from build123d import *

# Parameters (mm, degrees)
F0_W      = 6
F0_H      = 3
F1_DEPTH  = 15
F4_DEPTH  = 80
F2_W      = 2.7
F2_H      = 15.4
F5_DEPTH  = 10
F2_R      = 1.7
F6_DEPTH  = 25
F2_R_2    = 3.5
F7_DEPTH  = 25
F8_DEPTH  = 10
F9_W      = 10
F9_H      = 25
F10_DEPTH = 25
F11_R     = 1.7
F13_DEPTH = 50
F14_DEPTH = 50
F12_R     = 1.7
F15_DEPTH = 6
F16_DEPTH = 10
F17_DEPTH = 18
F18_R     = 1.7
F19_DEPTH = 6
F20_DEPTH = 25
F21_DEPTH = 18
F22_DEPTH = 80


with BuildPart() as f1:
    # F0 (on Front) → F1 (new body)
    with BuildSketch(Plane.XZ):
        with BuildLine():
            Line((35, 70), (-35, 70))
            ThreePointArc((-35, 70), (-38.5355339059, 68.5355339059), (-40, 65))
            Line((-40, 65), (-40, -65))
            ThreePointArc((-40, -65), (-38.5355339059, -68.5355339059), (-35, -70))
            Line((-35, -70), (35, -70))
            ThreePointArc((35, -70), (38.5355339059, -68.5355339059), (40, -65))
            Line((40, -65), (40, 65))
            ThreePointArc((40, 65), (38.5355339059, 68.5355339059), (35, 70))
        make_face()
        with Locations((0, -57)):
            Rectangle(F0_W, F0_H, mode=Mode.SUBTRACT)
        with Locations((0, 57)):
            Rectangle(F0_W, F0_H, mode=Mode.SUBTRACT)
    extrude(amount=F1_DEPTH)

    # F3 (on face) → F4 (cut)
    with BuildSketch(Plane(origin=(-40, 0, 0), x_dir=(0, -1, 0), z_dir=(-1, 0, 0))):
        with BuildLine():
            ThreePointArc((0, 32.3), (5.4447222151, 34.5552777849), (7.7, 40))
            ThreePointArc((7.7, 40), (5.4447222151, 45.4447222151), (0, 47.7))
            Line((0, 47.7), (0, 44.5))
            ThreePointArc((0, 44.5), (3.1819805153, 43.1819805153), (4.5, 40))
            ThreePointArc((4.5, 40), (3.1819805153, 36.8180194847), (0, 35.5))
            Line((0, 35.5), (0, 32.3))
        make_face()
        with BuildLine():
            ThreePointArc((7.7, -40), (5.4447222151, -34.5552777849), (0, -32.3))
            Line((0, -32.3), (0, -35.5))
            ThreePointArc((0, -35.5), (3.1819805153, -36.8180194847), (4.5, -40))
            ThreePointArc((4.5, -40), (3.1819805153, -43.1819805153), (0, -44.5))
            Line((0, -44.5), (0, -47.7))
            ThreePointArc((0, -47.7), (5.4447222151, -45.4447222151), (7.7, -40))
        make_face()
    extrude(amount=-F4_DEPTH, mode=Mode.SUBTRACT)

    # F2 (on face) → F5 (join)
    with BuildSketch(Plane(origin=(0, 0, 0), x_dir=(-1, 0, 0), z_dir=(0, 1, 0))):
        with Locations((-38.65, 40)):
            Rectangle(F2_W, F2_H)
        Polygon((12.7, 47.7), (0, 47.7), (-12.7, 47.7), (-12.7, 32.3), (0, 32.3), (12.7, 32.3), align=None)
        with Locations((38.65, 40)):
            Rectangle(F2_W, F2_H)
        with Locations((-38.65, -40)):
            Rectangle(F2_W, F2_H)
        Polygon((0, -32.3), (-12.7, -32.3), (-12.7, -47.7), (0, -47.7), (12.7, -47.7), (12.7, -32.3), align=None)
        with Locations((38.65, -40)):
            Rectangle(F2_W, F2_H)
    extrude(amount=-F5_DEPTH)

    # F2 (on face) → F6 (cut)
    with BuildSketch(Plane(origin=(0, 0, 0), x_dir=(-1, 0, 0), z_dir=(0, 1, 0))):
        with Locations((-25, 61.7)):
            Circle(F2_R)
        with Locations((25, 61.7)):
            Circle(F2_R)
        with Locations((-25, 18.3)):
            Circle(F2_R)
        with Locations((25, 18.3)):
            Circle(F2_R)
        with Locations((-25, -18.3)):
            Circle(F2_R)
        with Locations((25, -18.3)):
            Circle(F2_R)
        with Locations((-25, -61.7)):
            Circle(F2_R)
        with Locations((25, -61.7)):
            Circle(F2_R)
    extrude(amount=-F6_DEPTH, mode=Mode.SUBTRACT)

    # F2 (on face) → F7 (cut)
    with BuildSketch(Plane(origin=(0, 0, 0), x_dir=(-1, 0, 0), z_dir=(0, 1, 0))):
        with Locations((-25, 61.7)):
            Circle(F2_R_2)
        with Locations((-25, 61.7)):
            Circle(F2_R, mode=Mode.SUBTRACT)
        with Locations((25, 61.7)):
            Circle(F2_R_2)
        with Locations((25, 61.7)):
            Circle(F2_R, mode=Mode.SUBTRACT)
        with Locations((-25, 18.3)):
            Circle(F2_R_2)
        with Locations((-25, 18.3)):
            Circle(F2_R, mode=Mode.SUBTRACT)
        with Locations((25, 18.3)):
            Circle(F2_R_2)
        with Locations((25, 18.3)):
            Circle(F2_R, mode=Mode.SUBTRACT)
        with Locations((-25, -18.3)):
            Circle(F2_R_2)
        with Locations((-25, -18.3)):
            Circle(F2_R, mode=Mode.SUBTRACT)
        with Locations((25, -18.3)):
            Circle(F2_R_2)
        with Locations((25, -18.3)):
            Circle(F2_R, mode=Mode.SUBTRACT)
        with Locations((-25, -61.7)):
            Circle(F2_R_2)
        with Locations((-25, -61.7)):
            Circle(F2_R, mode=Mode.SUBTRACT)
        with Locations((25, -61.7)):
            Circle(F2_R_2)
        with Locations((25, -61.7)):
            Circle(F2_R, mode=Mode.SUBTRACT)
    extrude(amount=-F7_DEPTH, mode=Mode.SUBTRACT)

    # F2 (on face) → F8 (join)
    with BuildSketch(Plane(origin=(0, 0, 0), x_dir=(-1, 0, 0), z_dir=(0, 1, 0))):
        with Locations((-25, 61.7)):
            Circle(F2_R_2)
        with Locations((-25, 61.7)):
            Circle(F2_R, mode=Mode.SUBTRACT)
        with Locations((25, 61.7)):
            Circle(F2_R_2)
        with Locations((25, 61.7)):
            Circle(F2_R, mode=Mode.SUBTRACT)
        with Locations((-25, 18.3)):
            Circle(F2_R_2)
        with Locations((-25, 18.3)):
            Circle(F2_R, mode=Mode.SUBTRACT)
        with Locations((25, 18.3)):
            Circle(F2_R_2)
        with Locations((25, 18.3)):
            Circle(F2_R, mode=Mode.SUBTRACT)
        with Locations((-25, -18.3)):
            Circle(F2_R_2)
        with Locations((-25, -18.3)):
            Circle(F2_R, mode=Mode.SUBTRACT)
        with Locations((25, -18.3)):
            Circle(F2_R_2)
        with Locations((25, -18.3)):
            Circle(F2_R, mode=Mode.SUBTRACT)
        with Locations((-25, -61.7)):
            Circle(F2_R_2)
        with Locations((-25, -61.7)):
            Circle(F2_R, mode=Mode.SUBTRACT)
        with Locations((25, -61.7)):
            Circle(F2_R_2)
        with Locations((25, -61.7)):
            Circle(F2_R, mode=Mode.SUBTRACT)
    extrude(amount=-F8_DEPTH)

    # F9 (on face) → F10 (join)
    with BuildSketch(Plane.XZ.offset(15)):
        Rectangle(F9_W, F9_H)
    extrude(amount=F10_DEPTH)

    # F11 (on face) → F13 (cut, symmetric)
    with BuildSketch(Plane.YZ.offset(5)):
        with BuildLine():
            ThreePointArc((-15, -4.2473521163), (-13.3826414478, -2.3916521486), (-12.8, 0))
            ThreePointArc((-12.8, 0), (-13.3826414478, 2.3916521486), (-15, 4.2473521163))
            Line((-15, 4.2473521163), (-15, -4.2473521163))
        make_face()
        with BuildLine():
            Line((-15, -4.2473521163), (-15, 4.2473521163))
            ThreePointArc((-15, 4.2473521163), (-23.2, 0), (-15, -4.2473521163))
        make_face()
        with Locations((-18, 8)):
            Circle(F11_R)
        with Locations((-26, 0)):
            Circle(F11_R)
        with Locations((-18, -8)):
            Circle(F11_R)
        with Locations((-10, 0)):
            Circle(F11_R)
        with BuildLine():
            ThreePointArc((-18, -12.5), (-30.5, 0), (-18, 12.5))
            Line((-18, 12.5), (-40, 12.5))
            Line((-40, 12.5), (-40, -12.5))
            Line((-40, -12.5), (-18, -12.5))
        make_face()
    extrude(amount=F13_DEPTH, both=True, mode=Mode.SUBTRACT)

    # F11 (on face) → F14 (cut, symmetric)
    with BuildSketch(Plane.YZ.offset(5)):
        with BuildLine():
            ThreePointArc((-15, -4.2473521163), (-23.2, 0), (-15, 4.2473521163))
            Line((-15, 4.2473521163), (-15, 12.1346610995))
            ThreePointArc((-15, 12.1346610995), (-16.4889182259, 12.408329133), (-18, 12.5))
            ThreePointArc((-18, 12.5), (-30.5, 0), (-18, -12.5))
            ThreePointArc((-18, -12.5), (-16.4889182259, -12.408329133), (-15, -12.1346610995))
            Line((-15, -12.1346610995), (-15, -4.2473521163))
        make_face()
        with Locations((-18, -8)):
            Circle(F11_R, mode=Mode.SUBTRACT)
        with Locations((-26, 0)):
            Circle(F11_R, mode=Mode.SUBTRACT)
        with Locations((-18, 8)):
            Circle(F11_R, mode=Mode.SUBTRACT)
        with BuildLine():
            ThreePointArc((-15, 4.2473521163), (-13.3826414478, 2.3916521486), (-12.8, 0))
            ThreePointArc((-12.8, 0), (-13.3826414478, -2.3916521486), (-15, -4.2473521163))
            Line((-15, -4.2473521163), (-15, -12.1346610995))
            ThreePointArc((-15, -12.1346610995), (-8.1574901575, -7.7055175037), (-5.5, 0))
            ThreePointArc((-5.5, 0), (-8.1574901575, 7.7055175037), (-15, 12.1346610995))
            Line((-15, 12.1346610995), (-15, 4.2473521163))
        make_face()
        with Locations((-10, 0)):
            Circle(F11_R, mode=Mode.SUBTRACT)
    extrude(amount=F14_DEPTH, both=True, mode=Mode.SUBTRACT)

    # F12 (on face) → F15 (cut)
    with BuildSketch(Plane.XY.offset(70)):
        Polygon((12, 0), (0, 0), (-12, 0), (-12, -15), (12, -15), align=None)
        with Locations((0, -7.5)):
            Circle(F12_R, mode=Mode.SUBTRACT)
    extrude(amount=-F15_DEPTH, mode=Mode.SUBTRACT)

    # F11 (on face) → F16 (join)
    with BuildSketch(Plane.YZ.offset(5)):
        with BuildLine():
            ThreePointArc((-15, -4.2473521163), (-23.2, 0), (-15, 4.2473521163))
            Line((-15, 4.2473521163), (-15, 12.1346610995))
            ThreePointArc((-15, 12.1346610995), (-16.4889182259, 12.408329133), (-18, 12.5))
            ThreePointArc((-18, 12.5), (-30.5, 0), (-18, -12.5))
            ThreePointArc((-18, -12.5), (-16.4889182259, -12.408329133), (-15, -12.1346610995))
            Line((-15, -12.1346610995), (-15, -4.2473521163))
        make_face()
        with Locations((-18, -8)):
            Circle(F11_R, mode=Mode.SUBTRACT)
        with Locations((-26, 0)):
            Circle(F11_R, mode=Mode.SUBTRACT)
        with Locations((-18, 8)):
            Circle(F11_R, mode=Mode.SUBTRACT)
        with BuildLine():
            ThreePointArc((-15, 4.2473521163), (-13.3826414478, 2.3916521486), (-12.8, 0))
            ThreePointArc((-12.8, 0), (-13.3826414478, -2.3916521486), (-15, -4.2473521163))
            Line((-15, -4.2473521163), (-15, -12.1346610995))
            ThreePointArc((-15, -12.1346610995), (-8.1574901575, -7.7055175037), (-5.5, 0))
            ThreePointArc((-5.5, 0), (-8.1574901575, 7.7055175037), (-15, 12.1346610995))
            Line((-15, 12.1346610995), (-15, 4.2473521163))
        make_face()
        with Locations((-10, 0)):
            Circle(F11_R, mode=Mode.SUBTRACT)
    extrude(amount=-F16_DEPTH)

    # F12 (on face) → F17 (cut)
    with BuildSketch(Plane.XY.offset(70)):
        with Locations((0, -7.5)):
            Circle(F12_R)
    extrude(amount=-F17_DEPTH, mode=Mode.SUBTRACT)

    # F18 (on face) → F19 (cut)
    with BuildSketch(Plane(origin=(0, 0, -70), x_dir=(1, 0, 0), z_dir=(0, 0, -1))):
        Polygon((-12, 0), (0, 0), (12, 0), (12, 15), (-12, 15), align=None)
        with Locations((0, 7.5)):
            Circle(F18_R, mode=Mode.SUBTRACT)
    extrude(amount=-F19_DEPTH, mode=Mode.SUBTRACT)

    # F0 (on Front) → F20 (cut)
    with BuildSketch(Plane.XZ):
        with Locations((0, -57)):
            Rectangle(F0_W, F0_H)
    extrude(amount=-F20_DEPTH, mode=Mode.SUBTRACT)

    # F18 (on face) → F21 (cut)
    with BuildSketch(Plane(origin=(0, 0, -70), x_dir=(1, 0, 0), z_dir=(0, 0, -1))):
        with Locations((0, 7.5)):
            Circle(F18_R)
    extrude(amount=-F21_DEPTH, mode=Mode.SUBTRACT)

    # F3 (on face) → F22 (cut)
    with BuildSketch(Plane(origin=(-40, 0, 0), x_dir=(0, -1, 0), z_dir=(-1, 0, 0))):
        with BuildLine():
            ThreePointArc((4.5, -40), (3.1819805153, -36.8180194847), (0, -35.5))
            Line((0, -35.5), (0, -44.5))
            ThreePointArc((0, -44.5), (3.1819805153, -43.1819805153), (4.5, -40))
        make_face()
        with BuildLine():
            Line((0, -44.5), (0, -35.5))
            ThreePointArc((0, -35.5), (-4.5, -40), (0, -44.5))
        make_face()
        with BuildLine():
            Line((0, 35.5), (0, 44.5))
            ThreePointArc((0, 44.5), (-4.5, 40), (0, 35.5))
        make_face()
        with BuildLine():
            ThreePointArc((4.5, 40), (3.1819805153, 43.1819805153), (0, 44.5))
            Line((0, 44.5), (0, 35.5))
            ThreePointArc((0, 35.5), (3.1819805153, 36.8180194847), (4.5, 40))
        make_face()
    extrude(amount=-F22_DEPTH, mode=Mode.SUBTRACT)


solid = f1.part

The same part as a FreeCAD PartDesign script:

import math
import FreeCAD as App
import Part
import Sketcher

V = App.Vector


def add_polygon(sketch, points):
    """Adds a closed chain of lines whose ends are joined by coincident constraints."""
    first, n = sketch.GeometryCount, len(points)
    for a, b in zip(points, points[1:] + points[:1]):
        sketch.addGeometry(Part.LineSegment(App.Vector(*a, 0), App.Vector(*b, 0)), False)
    for i in range(n):
        sketch.addConstraint(Sketcher.Constraint("Coincident", first + i, 2, first + (i + 1) % n, 1))

doc = App.newDocument("Part")
body = doc.addObject("PartDesign::Body", "Body")
body.AllowCompound = True

# Sketch on XZ plane
sketch1 = doc.addObject("Sketcher::SketchObject", "Sketch")
body.addObject(sketch1)
sketch1.AttachmentSupport = (doc.XZ_Plane, [""])
sketch1.MapMode = "FlatFace"
sketch1.addGeometry(Part.LineSegment(V(35, 70, 0), V(-35, 70, 0)), False)  # 0
sketch1.addGeometry(Part.ArcOfCircle(Part.Circle(V(-35, 65, 0), V(0, 0, 1), 5), math.radians(90), math.radians(180)), False)  # 1
sketch1.addGeometry(Part.LineSegment(V(-40, 65, 0), V(-40, -65, 0)), False)  # 2
sketch1.addGeometry(Part.ArcOfCircle(Part.Circle(V(-35, -65, 0), V(0, 0, 1), 5), math.radians(180), math.radians(270)), False)  # 3
sketch1.addGeometry(Part.LineSegment(V(-35, -70, 0), V(35, -70, 0)), False)  # 4
sketch1.addGeometry(Part.ArcOfCircle(Part.Circle(V(35, -65, 0), V(0, 0, 1), 5), math.radians(-90), math.radians(0)), False)  # 5
sketch1.addGeometry(Part.LineSegment(V(40, -65, 0), V(40, 65, 0)), False)  # 6
sketch1.addGeometry(Part.ArcOfCircle(Part.Circle(V(35, 65, 0), V(0, 0, 1), 5), math.radians(0), math.radians(90)), False)  # 7
add_polygon(sketch1, [(3, -58.5), (-3, -58.5), (-3, -55.5), (3, -55.5)])  # lines 8-11
add_polygon(sketch1, [(3, 55.5), (-3, 55.5), (-3, 58.5), (3, 58.5)])  # lines 12-15
sketch1.addConstraint([
    Sketcher.Constraint("Tangent", 0, 2, 1, 1),
    Sketcher.Constraint("Tangent", 1, 2, 2, 1),
    Sketcher.Constraint("Tangent", 2, 2, 3, 1),
    Sketcher.Constraint("Tangent", 3, 2, 4, 1),
    Sketcher.Constraint("Tangent", 4, 2, 5, 1),
    Sketcher.Constraint("Tangent", 5, 2, 6, 1),
    Sketcher.Constraint("Tangent", 6, 2, 7, 1),
    Sketcher.Constraint("Tangent", 7, 2, 0, 1),
    Sketcher.Constraint("Horizontal", 0),
    Sketcher.Constraint("Vertical", 2),
    Sketcher.Constraint("Horizontal", 4),
    Sketcher.Constraint("Vertical", 6),
    Sketcher.Constraint("Horizontal", 8),
    Sketcher.Constraint("Vertical", 9),
    Sketcher.Constraint("Horizontal", 10),
    Sketcher.Constraint("Vertical", 11),
    Sketcher.Constraint("Horizontal", 12),
    Sketcher.Constraint("Vertical", 13),
    Sketcher.Constraint("Horizontal", 14),
    Sketcher.Constraint("Vertical", 15),
    Sketcher.Constraint("Equal", 1, 3),
    Sketcher.Constraint("Equal", 3, 5),
    Sketcher.Constraint("Equal", 5, 7),
    Sketcher.Constraint("Symmetric", 1, 3, 5, 3, -1, 1),
    Sketcher.Constraint("Symmetric", 10, 2, 12, 2, -1, 1),
    Sketcher.Constraint("Symmetric", 8, 2, 14, 2, -1, 1),
    Sketcher.Constraint("Vertical", 9, 2, 12, 2),
    Sketcher.Constraint("Radius", 1, 5.0),
    Sketcher.Constraint("DistanceX", 0, 2, 0, 1, 70.0),
    Sketcher.Constraint("DistanceX", 8, 2, 8, 1, 6.0),
    Sketcher.Constraint("DistanceY", 2, 2, 2, 1, 130.0),
    Sketcher.Constraint("DistanceY", 9, 1, 9, 2, 3.0),
    Sketcher.Constraint("DistanceY", 8, 2, -1, 1, 58.5),
])
pad1 = doc.addObject("PartDesign::Pad", "Pad")
body.addObject(pad1)
pad1.Profile = sketch1
pad1.Length = 15

# Sketch on YZ plane
sketch2 = doc.addObject("Sketcher::SketchObject", "Sketch001")
body.addObject(sketch2)
sketch2.AttachmentSupport = (doc.YZ_Plane, [""])
sketch2.MapMode = "FlatFace"
sketch2.AttachmentOffset = App.Placement(V(0, 0, -40), App.Rotation())
sketch2.addGeometry([
    Part.ArcOfCircle(Part.Circle(V(0, 40, 0), V(0, 0, 1), 7.7), math.radians(180), math.radians(270)),  # 0
    Part.ArcOfCircle(Part.Circle(V(0, 40, 0), V(0, 0, 1), 7.7), math.radians(90), math.radians(180)),  # 1
    Part.LineSegment(V(0, 47.7, 0), V(0, 44.5, 0)),  # 2
    Part.ArcOfCircle(Part.Circle(V(0, 40, 0), V(0, 0, 1), 4.5), math.radians(90), math.radians(180)),  # 3
    Part.ArcOfCircle(Part.Circle(V(0, 40, 0), V(0, 0, 1), 4.5), math.radians(180), math.radians(270)),  # 4
    Part.LineSegment(V(0, 35.5, 0), V(0, 32.3, 0)),  # 5
    Part.ArcOfCircle(Part.Circle(V(0, -40, 0), V(0, 0, 1), 7.7), math.radians(90), math.radians(180)),  # 6
    Part.LineSegment(V(0, -32.3, 0), V(0, -35.5, 0)),  # 7
    Part.ArcOfCircle(Part.Circle(V(0, -40, 0), V(0, 0, 1), 4.5), math.radians(90), math.radians(180)),  # 8
    Part.ArcOfCircle(Part.Circle(V(0, -40, 0), V(0, 0, 1), 4.5), math.radians(180), math.radians(270)),  # 9
    Part.LineSegment(V(0, -44.5, 0), V(0, -47.7, 0)),  # 10
    Part.ArcOfCircle(Part.Circle(V(0, -40, 0), V(0, 0, 1), 7.7), math.radians(180), math.radians(270)),  # 11
], False)
sketch2.addConstraint([
    Sketcher.Constraint("Tangent", 0, 1, 1, 2),
    Sketcher.Constraint("Coincident", 1, 1, 2, 1),
    Sketcher.Constraint("Coincident", 2, 2, 3, 1),
    Sketcher.Constraint("Tangent", 3, 2, 4, 1),
    Sketcher.Constraint("Coincident", 4, 2, 5, 1),
    Sketcher.Constraint("Coincident", 5, 2, 0, 2),
    Sketcher.Constraint("Coincident", 6, 1, 7, 1),
    Sketcher.Constraint("Coincident", 7, 2, 8, 1),
    Sketcher.Constraint("Tangent", 8, 2, 9, 1),
    Sketcher.Constraint("Coincident", 9, 2, 10, 1),
    Sketcher.Constraint("Coincident", 10, 2, 11, 2),
    Sketcher.Constraint("Tangent", 11, 1, 6, 2),
    Sketcher.Constraint("Vertical", 2),
    Sketcher.Constraint("Vertical", 5),
    Sketcher.Constraint("Vertical", 7),
    Sketcher.Constraint("Vertical", 10),
    Sketcher.Constraint("Coincident", 3, 3, 0, 3),
    Sketcher.Constraint("Coincident", 8, 3, 6, 3),
    Sketcher.Constraint("Equal", 0, 1),
    Sketcher.Constraint("Equal", 3, 4),
    Sketcher.Constraint("Equal", 1, 6),
    Sketcher.Constraint("Equal", 4, 8),
    Sketcher.Constraint("Equal", 8, 9),
    Sketcher.Constraint("Equal", 6, 11),
    Sketcher.Constraint("Symmetric", 0, 3, 6, 3, -1, 1),
    Sketcher.Constraint("Symmetric", 3, 2, 8, 2, -1),
    Sketcher.Constraint("PointOnObject", 1, 1, -2),
    Sketcher.Constraint("PointOnObject", 4, 2, -2),
    Sketcher.Constraint("PointOnObject", 6, 1, -2),
    Sketcher.Constraint("PointOnObject", 9, 2, -2),
    Sketcher.Constraint("Horizontal", 4, 3, 0, 1),
    Sketcher.Constraint("Horizontal", 0, 1, 3, 2),
    Sketcher.Constraint("Horizontal", 8, 2, 11, 1),
    Sketcher.Constraint("Radius", 0, 7.7),
    Sketcher.Constraint("Radius", 3, 4.5),
    Sketcher.Constraint("DistanceY", -1, 1, 0, 3, 40.0),
])
pocket1 = doc.addObject("PartDesign::Pocket", "Pocket")
body.addObject(pocket1)
pocket1.Profile = sketch2
pocket1.Length = 80
pocket1.Reversed = True

# Sketch on XZ plane
sketch3 = doc.addObject("Sketcher::SketchObject", "Sketch002")
body.addObject(sketch3)
sketch3.AttachmentSupport = (doc.XZ_Plane, [""])
sketch3.MapMode = "FlatFace"
add_polygon(sketch3, [(40, 47.7), (40, 32.3), (37.3, 32.3), (37.3, 47.7)])  # lines 0-3
add_polygon(sketch3, [(-12.7, 47.7), (12.7, 47.7), (12.7, 32.3), (-12.7, 32.3)])  # lines 4-7
add_polygon(sketch3, [(-37.3, 47.7), (-37.3, 32.3), (-40, 32.3), (-40, 47.7)])  # lines 8-11
add_polygon(sketch3, [(40, -32.3), (40, -47.7), (37.3, -47.7), (37.3, -32.3)])  # lines 12-15
add_polygon(sketch3, [(12.7, -32.3), (12.7, -47.7), (-12.7, -47.7), (-12.7, -32.3)])  # lines 16-19
add_polygon(sketch3, [(-37.3, -32.3), (-37.3, -47.7), (-40, -47.7), (-40, -32.3)])  # lines 20-23
sketch3.addConstraint([
    Sketcher.Constraint("Vertical", 0),
    Sketcher.Constraint("Horizontal", 1),
    Sketcher.Constraint("Vertical", 2),
    Sketcher.Constraint("Horizontal", 3),
    Sketcher.Constraint("Horizontal", 4),
    Sketcher.Constraint("Vertical", 5),
    Sketcher.Constraint("Horizontal", 6),
    Sketcher.Constraint("Vertical", 7),
    Sketcher.Constraint("Vertical", 8),
    Sketcher.Constraint("Horizontal", 9),
    Sketcher.Constraint("Vertical", 10),
    Sketcher.Constraint("Horizontal", 11),
    Sketcher.Constraint("Vertical", 12),
    Sketcher.Constraint("Horizontal", 13),
    Sketcher.Constraint("Vertical", 14),
    Sketcher.Constraint("Horizontal", 15),
    Sketcher.Constraint("Vertical", 16),
    Sketcher.Constraint("Horizontal", 17),
    Sketcher.Constraint("Vertical", 18),
    Sketcher.Constraint("Horizontal", 19),
    Sketcher.Constraint("Vertical", 20),
    Sketcher.Constraint("Horizontal", 21),
    Sketcher.Constraint("Vertical", 22),
    Sketcher.Constraint("Horizontal", 23),
    Sketcher.Constraint("Symmetric", 10, 2, 12, 2, -1, 1),
    Sketcher.Constraint("Symmetric", 8, 2, 14, 2, -1, 1),
    Sketcher.Constraint("Symmetric", 7, 2, 16, 2, -1, 1),
    Sketcher.Constraint("Symmetric", 5, 2, 18, 2, -1, 1),
    Sketcher.Constraint("Symmetric", 2, 2, 20, 2, -1, 1),
    Sketcher.Constraint("Symmetric", 0, 2, 22, 2, -1, 1),
    Sketcher.Constraint("Symmetric", 1, 2, 8, 2, -2),
    Sketcher.Constraint("Symmetric", 3, 2, 10, 2, -2),
    Sketcher.Constraint("Horizontal", 3, 2, 4, 2),
    Sketcher.Constraint("Horizontal", 1, 2, 5, 2),
    Sketcher.Constraint("Vertical", 5, 2, 16, 2),
    Sketcher.Constraint("DistanceX", 1, 2, 1, 1, 2.7),
    Sketcher.Constraint("DistanceX", 4, 1, 4, 2, 25.4),
    Sketcher.Constraint("DistanceY", 0, 2, 0, 1, 15.4),
    Sketcher.Constraint("DistanceX", -1, 1, 0, 2, 40.0),
    Sketcher.Constraint("DistanceY", 12, 2, 0, 2, 80.0),
])
pad2 = doc.addObject("PartDesign::Pad", "Pad001")
body.addObject(pad2)
pad2.Profile = sketch3
pad2.Length = 10

# Sketch on XZ plane
sketch4 = doc.addObject("Sketcher::SketchObject", "Sketch003")
body.addObject(sketch4)
sketch4.AttachmentSupport = (doc.XZ_Plane, [""])
sketch4.MapMode = "FlatFace"
sketch4.addGeometry([
    Part.Circle(V(25, 61.7, 0), V(0, 0, 1), 1.7),  # 0
    Part.Circle(V(-25, 61.7, 0), V(0, 0, 1), 1.7),  # 1
    Part.Circle(V(25, 18.3, 0), V(0, 0, 1), 1.7),  # 2
    Part.Circle(V(-25, 18.3, 0), V(0, 0, 1), 1.7),  # 3
    Part.Circle(V(25, -18.3, 0), V(0, 0, 1), 1.7),  # 4
    Part.Circle(V(-25, -18.3, 0), V(0, 0, 1), 1.7),  # 5
    Part.Circle(V(25, -61.7, 0), V(0, 0, 1), 1.7),  # 6
    Part.Circle(V(-25, -61.7, 0), V(0, 0, 1), 1.7),  # 7
], False)
sketch4.addConstraint([
    Sketcher.Constraint("Equal", 0, 1),
    Sketcher.Constraint("Equal", 1, 2),
    Sketcher.Constraint("Equal", 2, 3),
    Sketcher.Constraint("Equal", 3, 4),
    Sketcher.Constraint("Equal", 4, 5),
    Sketcher.Constraint("Equal", 5, 6),
    Sketcher.Constraint("Equal", 6, 7),
    Sketcher.Constraint("Symmetric", 3, 3, 4, 3, -1, 1),
    Sketcher.Constraint("Symmetric", 2, 3, 5, 3, -1, 1),
    Sketcher.Constraint("Symmetric", 1, 3, 6, 3, -1, 1),
    Sketcher.Constraint("Symmetric", 0, 3, 7, 3, -1, 1),
    Sketcher.Constraint("Symmetric", 0, 3, 1, 3, -2),
    Sketcher.Constraint("Symmetric", 2, 3, 3, 3, -2),
    Sketcher.Constraint("Vertical", 0, 3, 2, 3),
    Sketcher.Constraint("Diameter", 0, 3.4),
    Sketcher.Constraint("DistanceX", -1, 1, 0, 3, 25.0),
    Sketcher.Constraint("DistanceY", 4, 3, 0, 3, 80.0),
    Sketcher.Constraint("DistanceY", -1, 1, 0, 3, 61.7),
])
pocket2 = doc.addObject("PartDesign::Pocket", "Pocket001")
body.addObject(pocket2)
pocket2.Profile = sketch4
pocket2.Length = 25
pocket2.Reversed = True

# Sketch on XZ plane
sketch5 = doc.addObject("Sketcher::SketchObject", "Sketch004")
body.addObject(sketch5)
sketch5.AttachmentSupport = (doc.XZ_Plane, [""])
sketch5.MapMode = "FlatFace"
sketch5.addGeometry([
    Part.Circle(V(25, 61.7, 0), V(0, 0, 1), 3.5),  # 0
    Part.Circle(V(25, 61.7, 0), V(0, 0, 1), 1.7),  # 1
    Part.Circle(V(-25, 61.7, 0), V(0, 0, 1), 3.5),  # 2
    Part.Circle(V(-25, 61.7, 0), V(0, 0, 1), 1.7),  # 3
    Part.Circle(V(25, 18.3, 0), V(0, 0, 1), 3.5),  # 4
    Part.Circle(V(25, 18.3, 0), V(0, 0, 1), 1.7),  # 5
    Part.Circle(V(-25, 18.3, 0), V(0, 0, 1), 3.5),  # 6
    Part.Circle(V(-25, 18.3, 0), V(0, 0, 1), 1.7),  # 7
    Part.Circle(V(25, -18.3, 0), V(0, 0, 1), 3.5),  # 8
    Part.Circle(V(25, -18.3, 0), V(0, 0, 1), 1.7),  # 9
    Part.Circle(V(-25, -18.3, 0), V(0, 0, 1), 3.5),  # 10
    Part.Circle(V(-25, -18.3, 0), V(0, 0, 1), 1.7),  # 11
    Part.Circle(V(25, -61.7, 0), V(0, 0, 1), 3.5),  # 12
    Part.Circle(V(25, -61.7, 0), V(0, 0, 1), 1.7),  # 13
    Part.Circle(V(-25, -61.7, 0), V(0, 0, 1), 3.5),  # 14
    Part.Circle(V(-25, -61.7, 0), V(0, 0, 1), 1.7),  # 15
], False)
sketch5.addConstraint([
    Sketcher.Constraint("Coincident", 1, 3, 0, 3),
    Sketcher.Constraint("Coincident", 3, 3, 2, 3),
    Sketcher.Constraint("Coincident", 5, 3, 4, 3),
    Sketcher.Constraint("Coincident", 7, 3, 6, 3),
    Sketcher.Constraint("Coincident", 9, 3, 8, 3),
    Sketcher.Constraint("Coincident", 11, 3, 10, 3),
    Sketcher.Constraint("Coincident", 13, 3, 12, 3),
    Sketcher.Constraint("Coincident", 15, 3, 14, 3),
    Sketcher.Constraint("Equal", 0, 2),
    Sketcher.Constraint("Equal", 1, 3),
    Sketcher.Constraint("Equal", 2, 4),
    Sketcher.Constraint("Equal", 3, 5),
    Sketcher.Constraint("Equal", 4, 6),
    Sketcher.Constraint("Equal", 5, 7),
    Sketcher.Constraint("Equal", 6, 8),
    Sketcher.Constraint("Equal", 7, 9),
    Sketcher.Constraint("Equal", 8, 10),
    Sketcher.Constraint("Equal", 9, 11),
    Sketcher.Constraint("Equal", 10, 12),
    Sketcher.Constraint("Equal", 11, 13),
    Sketcher.Constraint("Equal", 12, 14),
    Sketcher.Constraint("Equal", 13, 15),
    Sketcher.Constraint("Symmetric", 6, 3, 8, 3, -1, 1),
    Sketcher.Constraint("Symmetric", 4, 3, 10, 3, -1, 1),
    Sketcher.Constraint("Symmetric", 2, 3, 12, 3, -1, 1),
    Sketcher.Constraint("Symmetric", 0, 3, 14, 3, -1, 1),
    Sketcher.Constraint("Symmetric", 0, 3, 2, 3, -2),
    Sketcher.Constraint("Symmetric", 4, 3, 6, 3, -2),
    Sketcher.Constraint("Vertical", 1, 3, 4, 3),
    Sketcher.Constraint("Diameter", 0, 7.0),
    Sketcher.Constraint("Diameter", 1, 3.4),
    Sketcher.Constraint("DistanceX", -1, 1, 0, 3, 25.0),
    Sketcher.Constraint("DistanceY", 8, 3, 0, 3, 80.0),
    Sketcher.Constraint("DistanceY", -1, 1, 0, 3, 61.7),
])
pocket3 = doc.addObject("PartDesign::Pocket", "Pocket002")
body.addObject(pocket3)
pocket3.Profile = sketch5
pocket3.Length = 25
pocket3.Reversed = True

# Sketch on XZ plane
sketch6 = doc.addObject("Sketcher::SketchObject", "Sketch005")
body.addObject(sketch6)
sketch6.AttachmentSupport = (doc.XZ_Plane, [""])
sketch6.MapMode = "FlatFace"
sketch6.addGeometry([
    Part.Circle(V(25, 61.7, 0), V(0, 0, 1), 3.5),  # 0
    Part.Circle(V(25, 61.7, 0), V(0, 0, 1), 1.7),  # 1
    Part.Circle(V(-25, 61.7, 0), V(0, 0, 1), 3.5),  # 2
    Part.Circle(V(-25, 61.7, 0), V(0, 0, 1), 1.7),  # 3
    Part.Circle(V(25, 18.3, 0), V(0, 0, 1), 3.5),  # 4
    Part.Circle(V(25, 18.3, 0), V(0, 0, 1), 1.7),  # 5
    Part.Circle(V(-25, 18.3, 0), V(0, 0, 1), 3.5),  # 6
    Part.Circle(V(-25, 18.3, 0), V(0, 0, 1), 1.7),  # 7
    Part.Circle(V(25, -18.3, 0), V(0, 0, 1), 3.5),  # 8
    Part.Circle(V(25, -18.3, 0), V(0, 0, 1), 1.7),  # 9
    Part.Circle(V(-25, -18.3, 0), V(0, 0, 1), 3.5),  # 10
    Part.Circle(V(-25, -18.3, 0), V(0, 0, 1), 1.7),  # 11
    Part.Circle(V(25, -61.7, 0), V(0, 0, 1), 3.5),  # 12
    Part.Circle(V(25, -61.7, 0), V(0, 0, 1), 1.7),  # 13
    Part.Circle(V(-25, -61.7, 0), V(0, 0, 1), 3.5),  # 14
    Part.Circle(V(-25, -61.7, 0), V(0, 0, 1), 1.7),  # 15
], False)
sketch6.addConstraint([
    Sketcher.Constraint("Coincident", 1, 3, 0, 3),
    Sketcher.Constraint("Coincident", 3, 3, 2, 3),
    Sketcher.Constraint("Coincident", 5, 3, 4, 3),
    Sketcher.Constraint("Coincident", 7, 3, 6, 3),
    Sketcher.Constraint("Coincident", 9, 3, 8, 3),
    Sketcher.Constraint("Coincident", 11, 3, 10, 3),
    Sketcher.Constraint("Coincident", 13, 3, 12, 3),
    Sketcher.Constraint("Coincident", 15, 3, 14, 3),
    Sketcher.Constraint("Equal", 0, 2),
    Sketcher.Constraint("Equal", 1, 3),
    Sketcher.Constraint("Equal", 2, 4),
    Sketcher.Constraint("Equal", 3, 5),
    Sketcher.Constraint("Equal", 4, 6),
    Sketcher.Constraint("Equal", 5, 7),
    Sketcher.Constraint("Equal", 6, 8),
    Sketcher.Constraint("Equal", 7, 9),
    Sketcher.Constraint("Equal", 8, 10),
    Sketcher.Constraint("Equal", 9, 11),
    Sketcher.Constraint("Equal", 10, 12),
    Sketcher.Constraint("Equal", 11, 13),
    Sketcher.Constraint("Equal", 12, 14),
    Sketcher.Constraint("Equal", 13, 15),
    Sketcher.Constraint("Symmetric", 6, 3, 8, 3, -1, 1),
    Sketcher.Constraint("Symmetric", 4, 3, 10, 3, -1, 1),
    Sketcher.Constraint("Symmetric", 2, 3, 12, 3, -1, 1),
    Sketcher.Constraint("Symmetric", 0, 3, 14, 3, -1, 1),
    Sketcher.Constraint("Symmetric", 0, 3, 2, 3, -2),
    Sketcher.Constraint("Symmetric", 4, 3, 6, 3, -2),
    Sketcher.Constraint("Vertical", 1, 3, 4, 3),
    Sketcher.Constraint("Diameter", 0, 7.0),
    Sketcher.Constraint("Diameter", 1, 3.4),
    Sketcher.Constraint("DistanceX", -1, 1, 0, 3, 25.0),
    Sketcher.Constraint("DistanceY", 8, 3, 0, 3, 80.0),
    Sketcher.Constraint("DistanceY", -1, 1, 0, 3, 61.7),
])
pad3 = doc.addObject("PartDesign::Pad", "Pad002")
body.addObject(pad3)
pad3.Profile = sketch6
pad3.Length = 10

# Sketch on XZ plane
sketch7 = doc.addObject("Sketcher::SketchObject", "Sketch006")
body.addObject(sketch7)
sketch7.AttachmentSupport = (doc.XZ_Plane, [""])
sketch7.MapMode = "FlatFace"
sketch7.AttachmentOffset = App.Placement(V(0, 0, 15), App.Rotation())
add_polygon(sketch7, [(-5, 12.5), (-5, -12.5), (5, -12.5), (5, 12.5)])  # lines 0-3
sketch7.addConstraint([
    Sketcher.Constraint("Vertical", 0),
    Sketcher.Constraint("Horizontal", 1),
    Sketcher.Constraint("Vertical", 2),
    Sketcher.Constraint("Horizontal", 3),
    Sketcher.Constraint("Symmetric", 0, 2, 2, 2, -1, 1),
    Sketcher.Constraint("DistanceX", 1, 1, 1, 2, 10.0),
    Sketcher.Constraint("DistanceY", 0, 2, 0, 1, 25.0),
])
pad4 = doc.addObject("PartDesign::Pad", "Pad003")
body.addObject(pad4)
pad4.Profile = sketch7
pad4.Length = 25

# Sketch on YZ plane
sketch8 = doc.addObject("Sketcher::SketchObject", "Sketch007")
body.addObject(sketch8)
sketch8.AttachmentSupport = (doc.YZ_Plane, [""])
sketch8.MapMode = "FlatFace"
sketch8.AttachmentOffset = App.Placement(V(0, 0, 5), App.Rotation())
sketch8.addGeometry([
    Part.ArcOfCircle(Part.Circle(V(-18, 0, 0), V(0, 0, 1), 5.2), math.radians(-54.765582), math.radians(0)),  # 0
    Part.ArcOfCircle(Part.Circle(V(-18, 0, 0), V(0, 0, 1), 5.2), math.radians(0), math.radians(54.765582)),  # 1
    Part.ArcOfCircle(Part.Circle(V(-18, 0, 0), V(0, 0, 1), 5.2), math.radians(54.765582), math.radians(305.234418)),  # 2
    Part.Circle(V(-18, 8, 0), V(0, 0, 1), 1.7),  # 3
    Part.Circle(V(-26, 0, 0), V(0, 0, 1), 1.7),  # 4
    Part.Circle(V(-18, -8, 0), V(0, 0, 1), 1.7),  # 5
    Part.Circle(V(-10, 0, 0), V(0, 0, 1), 1.7),  # 6
    Part.ArcOfCircle(Part.Circle(V(-18, 0, 0), V(0, 0, 1), 12.5), math.radians(90), math.radians(270)),  # 7
    Part.LineSegment(V(-18, 12.5, 0), V(-40, 12.5, 0)),  # 8
    Part.LineSegment(V(-40, 12.5, 0), V(-40, -12.5, 0)),  # 9
    Part.LineSegment(V(-40, -12.5, 0), V(-18, -12.5, 0)),  # 10
], False)
sketch8.addConstraint([
    Sketcher.Constraint("Tangent", 0, 2, 1, 1),
    Sketcher.Constraint("Tangent", 1, 2, 2, 1),
    Sketcher.Constraint("Tangent", 2, 2, 0, 1),
    Sketcher.Constraint("Tangent", 7, 1, 8, 1),
    Sketcher.Constraint("Coincident", 8, 2, 9, 1),
    Sketcher.Constraint("Coincident", 9, 2, 10, 1),
    Sketcher.Constraint("Tangent", 10, 2, 7, 2),
    Sketcher.Constraint("Horizontal", 8),
    Sketcher.Constraint("Vertical", 9),
    Sketcher.Constraint("Horizontal", 10),
    Sketcher.Constraint("Coincident", 7, 3, 0, 3),
    Sketcher.Constraint("Equal", 3, 4),
    Sketcher.Constraint("Equal", 4, 5),
    Sketcher.Constraint("Equal", 5, 6),
    Sketcher.Constraint("Symmetric", 3, 3, 5, 3, -1),
    Sketcher.Constraint("Symmetric", 1, 2, 2, 2, -1),
    Sketcher.Constraint("PointOnObject", 4, 3, -1),
    Sketcher.Constraint("PointOnObject", 6, 3, -1),
    Sketcher.Constraint("PointOnObject", 0, 2, -1),
    Sketcher.Constraint("Vertical", 2, 3, 3, 3),
    Sketcher.Constraint("Diameter", 3, 3.4),
    Sketcher.Constraint("Radius", 0, 5.2),
    Sketcher.Constraint("Radius", 7, 12.5),
    Sketcher.Constraint("DistanceX", 8, 2, 8, 1, 22.0),
    Sketcher.Constraint("DistanceX", 0, 3, -1, 1, 18.0),
    Sketcher.Constraint("DistanceY", -1, 1, 3, 3, 8.0),
    Sketcher.Constraint("DistanceX", 4, 3, -1, 1, 26.0),
    Sketcher.Constraint("DistanceX", 6, 3, -1, 1, 10.0),
    Sketcher.Constraint("DistanceX", 1, 2, -1, 1, 15.0),
])
pocket4 = doc.addObject("PartDesign::Pocket", "Pocket003")
body.addObject(pocket4)
pocket4.Profile = sketch8
pocket4.Length = 100
pocket4.Midplane = True

# Sketch on YZ plane
sketch9 = doc.addObject("Sketcher::SketchObject", "Sketch008")
body.addObject(sketch9)
sketch9.AttachmentSupport = (doc.YZ_Plane, [""])
sketch9.MapMode = "FlatFace"
sketch9.AttachmentOffset = App.Placement(V(0, 0, 5), App.Rotation())
sketch9.addGeometry([
    Part.ArcOfCircle(Part.Circle(V(-18, 0, 0), V(0, 0, 1), 12.5), math.radians(-90), math.radians(-76.11346)),  # 0
    Part.ArcOfCircle(Part.Circle(V(-18, 0, 0), V(0, 0, 1), 12.5), math.radians(-76.11346), math.radians(0)),  # 1
    Part.ArcOfCircle(Part.Circle(V(-18, 0, 0), V(0, 0, 1), 12.5), math.radians(0), math.radians(76.11346)),  # 2
    Part.ArcOfCircle(Part.Circle(V(-18, 0, 0), V(0, 0, 1), 12.5), math.radians(76.11346), math.radians(90)),  # 3
    Part.ArcOfCircle(Part.Circle(V(-18, 0, 0), V(0, 0, 1), 12.5), math.radians(90), math.radians(270)),  # 4
    Part.Circle(V(-18, -8, 0), V(0, 0, 1), 1.7),  # 5
    Part.Circle(V(-26, 0, 0), V(0, 0, 1), 1.7),  # 6
    Part.ArcOfCircle(Part.Circle(V(-18, 0, 0), V(0, 0, 1), 5.2), math.radians(54.765582), math.radians(305.234418)),  # 7
    Part.ArcOfCircle(Part.Circle(V(-18, 0, 0), V(0, 0, 1), 5.2), math.radians(0), math.radians(54.765582)),  # 8
    Part.ArcOfCircle(Part.Circle(V(-18, 0, 0), V(0, 0, 1), 5.2), math.radians(-54.765582), math.radians(0)),  # 9
    Part.Circle(V(-10, 0, 0), V(0, 0, 1), 1.7),  # 10
    Part.Circle(V(-18, 8, 0), V(0, 0, 1), 1.7),  # 11
], False)
sketch9.addConstraint([
    Sketcher.Constraint("Tangent", 0, 2, 1, 1),
    Sketcher.Constraint("Tangent", 1, 2, 2, 1),
    Sketcher.Constraint("Tangent", 2, 2, 3, 1),
    Sketcher.Constraint("Tangent", 3, 2, 4, 1),
    Sketcher.Constraint("Tangent", 4, 2, 0, 1),
    Sketcher.Constraint("Tangent", 7, 1, 8, 2),
    Sketcher.Constraint("Tangent", 8, 1, 9, 2),
    Sketcher.Constraint("Tangent", 9, 1, 7, 2),
    Sketcher.Constraint("Coincident", 2, 3, 0, 3),
    Sketcher.Constraint("Coincident", 7, 3, 0, 3),
    Sketcher.Constraint("Equal", 5, 6),
    Sketcher.Constraint("Equal", 6, 10),
    Sketcher.Constraint("Equal", 10, 11),
    Sketcher.Constraint("Symmetric", 5, 3, 11, 3, -1),
    Sketcher.Constraint("Symmetric", 0, 2, 2, 2, -1),
    Sketcher.Constraint("PointOnObject", 6, 3, -1),
    Sketcher.Constraint("PointOnObject", 10, 3, -1),
    Sketcher.Constraint("PointOnObject", 1, 2, -1),
    Sketcher.Constraint("PointOnObject", 8, 1, -1),
    Sketcher.Constraint("Vertical", 4, 3, 5, 3),
    Sketcher.Constraint("Vertical", 11, 3, 3, 2),
    Sketcher.Constraint("Vertical", 3, 2, 4, 2),
    Sketcher.Constraint("Vertical", 2, 2, 7, 1),
    Sketcher.Constraint("Vertical", 7, 1, 9, 1),
    Sketcher.Constraint("Diameter", 5, 3.4),
    Sketcher.Constraint("Radius", 0, 12.5),
    Sketcher.Constraint("Radius", 7, 5.2),
    Sketcher.Constraint("DistanceX", 0, 3, -1, 1, 18.0),
    Sketcher.Constraint("DistanceY", 5, 3, -1, 1, 8.0),
    Sketcher.Constraint("DistanceX", 6, 3, -1, 1, 26.0),
    Sketcher.Constraint("DistanceX", 10, 3, -1, 1, 10.0),
    Sketcher.Constraint("DistanceX", 0, 2, -1, 1, 15.0),
])
pocket5 = doc.addObject("PartDesign::Pocket", "Pocket004")
body.addObject(pocket5)
pocket5.Profile = sketch9
pocket5.Length = 100
pocket5.Midplane = True

# Sketch on XY plane
sketch10 = doc.addObject("Sketcher::SketchObject", "Sketch009")
body.addObject(sketch10)
sketch10.AttachmentSupport = (doc.XY_Plane, [""])
sketch10.MapMode = "FlatFace"
sketch10.AttachmentOffset = App.Placement(V(0, 0, 70), App.Rotation())
add_polygon(sketch10, [(12, 0), (-12, 0), (-12, -15), (12, -15)])  # lines 0-3
sketch10.addGeometry(Part.Circle(V(0, -7.5, 0), V(0, 0, 1), 1.7), False)  # 4
sketch10.addConstraint([
    Sketcher.Constraint("Horizontal", 0),
    Sketcher.Constraint("Vertical", 1),
    Sketcher.Constraint("Horizontal", 2),
    Sketcher.Constraint("Vertical", 3),
    Sketcher.Constraint("Symmetric", 0, 2, 3, 2, -1, 1),
    Sketcher.Constraint("PointOnObject", 4, 3, -2),
    Sketcher.Constraint("Diameter", 4, 3.4),
    Sketcher.Constraint("DistanceX", 0, 2, 0, 1, 24.0),
    Sketcher.Constraint("DistanceY", 1, 2, 1, 1, 15.0),
    Sketcher.Constraint("DistanceY", 4, 3, -1, 1, 7.5),
])
pocket6 = doc.addObject("PartDesign::Pocket", "Pocket005")
body.addObject(pocket6)
pocket6.Profile = sketch10
pocket6.Length = 6

# Sketch on YZ plane
sketch11 = doc.addObject("Sketcher::SketchObject", "Sketch010")
body.addObject(sketch11)
sketch11.AttachmentSupport = (doc.YZ_Plane, [""])
sketch11.MapMode = "FlatFace"
sketch11.AttachmentOffset = App.Placement(V(0, 0, 5), App.Rotation())
sketch11.addGeometry([
    Part.ArcOfCircle(Part.Circle(V(-18, 0, 0), V(0, 0, 1), 12.5), math.radians(-90), math.radians(-76.11346)),  # 0
    Part.ArcOfCircle(Part.Circle(V(-18, 0, 0), V(0, 0, 1), 12.5), math.radians(-76.11346), math.radians(0)),  # 1
    Part.ArcOfCircle(Part.Circle(V(-18, 0, 0), V(0, 0, 1), 12.5), math.radians(0), math.radians(76.11346)),  # 2
    Part.ArcOfCircle(Part.Circle(V(-18, 0, 0), V(0, 0, 1), 12.5), math.radians(76.11346), math.radians(90)),  # 3
    Part.ArcOfCircle(Part.Circle(V(-18, 0, 0), V(0, 0, 1), 12.5), math.radians(90), math.radians(270)),  # 4
    Part.Circle(V(-18, -8, 0), V(0, 0, 1), 1.7),  # 5
    Part.Circle(V(-26, 0, 0), V(0, 0, 1), 1.7),  # 6
    Part.ArcOfCircle(Part.Circle(V(-18, 0, 0), V(0, 0, 1), 5.2), math.radians(54.765582), math.radians(305.234418)),  # 7
    Part.ArcOfCircle(Part.Circle(V(-18, 0, 0), V(0, 0, 1), 5.2), math.radians(0), math.radians(54.765582)),  # 8
    Part.ArcOfCircle(Part.Circle(V(-18, 0, 0), V(0, 0, 1), 5.2), math.radians(-54.765582), math.radians(0)),  # 9
    Part.Circle(V(-10, 0, 0), V(0, 0, 1), 1.7),  # 10
    Part.Circle(V(-18, 8, 0), V(0, 0, 1), 1.7),  # 11
], False)
sketch11.addConstraint([
    Sketcher.Constraint("Tangent", 0, 2, 1, 1),
    Sketcher.Constraint("Tangent", 1, 2, 2, 1),
    Sketcher.Constraint("Tangent", 2, 2, 3, 1),
    Sketcher.Constraint("Tangent", 3, 2, 4, 1),
    Sketcher.Constraint("Tangent", 4, 2, 0, 1),
    Sketcher.Constraint("Tangent", 7, 1, 8, 2),
    Sketcher.Constraint("Tangent", 8, 1, 9, 2),
    Sketcher.Constraint("Tangent", 9, 1, 7, 2),
    Sketcher.Constraint("Coincident", 2, 3, 0, 3),
    Sketcher.Constraint("Coincident", 7, 3, 0, 3),
    Sketcher.Constraint("Equal", 5, 6),
    Sketcher.Constraint("Equal", 6, 10),
    Sketcher.Constraint("Equal", 10, 11),
    Sketcher.Constraint("Symmetric", 5, 3, 11, 3, -1),
    Sketcher.Constraint("Symmetric", 0, 2, 2, 2, -1),
    Sketcher.Constraint("PointOnObject", 6, 3, -1),
    Sketcher.Constraint("PointOnObject", 10, 3, -1),
    Sketcher.Constraint("PointOnObject", 1, 2, -1),
    Sketcher.Constraint("PointOnObject", 8, 1, -1),
    Sketcher.Constraint("Vertical", 4, 3, 5, 3),
    Sketcher.Constraint("Vertical", 11, 3, 3, 2),
    Sketcher.Constraint("Vertical", 3, 2, 4, 2),
    Sketcher.Constraint("Vertical", 2, 2, 7, 1),
    Sketcher.Constraint("Vertical", 7, 1, 9, 1),
    Sketcher.Constraint("Diameter", 5, 3.4),
    Sketcher.Constraint("Radius", 0, 12.5),
    Sketcher.Constraint("Radius", 7, 5.2),
    Sketcher.Constraint("DistanceX", 0, 3, -1, 1, 18.0),
    Sketcher.Constraint("DistanceY", 5, 3, -1, 1, 8.0),
    Sketcher.Constraint("DistanceX", 6, 3, -1, 1, 26.0),
    Sketcher.Constraint("DistanceX", 10, 3, -1, 1, 10.0),
    Sketcher.Constraint("DistanceX", 0, 2, -1, 1, 15.0),
])
pad5 = doc.addObject("PartDesign::Pad", "Pad004")
body.addObject(pad5)
pad5.Profile = sketch11
pad5.Length = 10
pad5.Reversed = True

# Sketch on XY plane
sketch12 = doc.addObject("Sketcher::SketchObject", "Sketch011")
body.addObject(sketch12)
sketch12.AttachmentSupport = (doc.XY_Plane, [""])
sketch12.MapMode = "FlatFace"
sketch12.AttachmentOffset = App.Placement(V(0, 0, 70), App.Rotation())
sketch12.addGeometry(Part.Circle(V(0, -7.5, 0), V(0, 0, 1), 1.7), False)
sketch12.addConstraint([
    Sketcher.Constraint("PointOnObject", 0, 3, -2),
    Sketcher.Constraint("Diameter", 0, 3.4),
    Sketcher.Constraint("DistanceY", 0, 3, -1, 1, 7.5),
])
pocket7 = doc.addObject("PartDesign::Pocket", "Pocket006")
body.addObject(pocket7)
pocket7.Profile = sketch12
pocket7.Length = 18

# Sketch on XY plane
sketch13 = doc.addObject("Sketcher::SketchObject", "Sketch012")
body.addObject(sketch13)
sketch13.AttachmentSupport = (doc.XY_Plane, [""])
sketch13.MapMode = "FlatFace"
sketch13.AttachmentOffset = App.Placement(V(0, 0, -70), App.Rotation())
add_polygon(sketch13, [(-12, 0), (12, 0), (12, -15), (-12, -15)])  # lines 0-3
sketch13.addGeometry(Part.Circle(V(0, -7.5, 0), V(0, 0, 1), 1.7), False)  # 4
sketch13.addConstraint([
    Sketcher.Constraint("Horizontal", 0),
    Sketcher.Constraint("Vertical", 1),
    Sketcher.Constraint("Horizontal", 2),
    Sketcher.Constraint("Vertical", 3),
    Sketcher.Constraint("Symmetric", 0, 2, 3, 2, -1, 1),
    Sketcher.Constraint("PointOnObject", 4, 3, -2),
    Sketcher.Constraint("Diameter", 4, 3.4),
    Sketcher.Constraint("DistanceX", 0, 1, 0, 2, 24.0),
    Sketcher.Constraint("DistanceY", 1, 2, 1, 1, 15.0),
    Sketcher.Constraint("DistanceY", 4, 3, -1, 1, 7.5),
])
pocket8 = doc.addObject("PartDesign::Pocket", "Pocket007")
body.addObject(pocket8)
pocket8.Profile = sketch13
pocket8.Length = 6
pocket8.Reversed = True

# Sketch on XZ plane
sketch14 = doc.addObject("Sketcher::SketchObject", "Sketch013")
body.addObject(sketch14)
sketch14.AttachmentSupport = (doc.XZ_Plane, [""])
sketch14.MapMode = "FlatFace"
add_polygon(sketch14, [(-3, -55.5), (-3, -58.5), (3, -58.5), (3, -55.5)])  # lines 0-3
sketch14.addConstraint([
    Sketcher.Constraint("Vertical", 0),
    Sketcher.Constraint("Horizontal", 1),
    Sketcher.Constraint("Vertical", 2),
    Sketcher.Constraint("Horizontal", 3),
    Sketcher.Constraint("DistanceX", 1, 1, 1, 2, 6.0),
    Sketcher.Constraint("DistanceY", 0, 2, 0, 1, 3.0),
    Sketcher.Constraint("DistanceX", 0, 2, -1, 1, 3.0),
    Sketcher.Constraint("DistanceY", 0, 2, -1, 1, 58.5),
])
pocket9 = doc.addObject("PartDesign::Pocket", "Pocket008")
body.addObject(pocket9)
pocket9.Profile = sketch14
pocket9.Length = 25

# Sketch on XY plane
sketch15 = doc.addObject("Sketcher::SketchObject", "Sketch014")
body.addObject(sketch15)
sketch15.AttachmentSupport = (doc.XY_Plane, [""])
sketch15.MapMode = "FlatFace"
sketch15.AttachmentOffset = App.Placement(V(0, 0, -70), App.Rotation())
sketch15.addGeometry(Part.Circle(V(0, -7.5, 0), V(0, 0, 1), 1.7), False)
sketch15.addConstraint([
    Sketcher.Constraint("PointOnObject", 0, 3, -2),
    Sketcher.Constraint("Diameter", 0, 3.4),
    Sketcher.Constraint("DistanceY", 0, 3, -1, 1, 7.5),
])
pocket10 = doc.addObject("PartDesign::Pocket", "Pocket009")
body.addObject(pocket10)
pocket10.Profile = sketch15
pocket10.Length = 18
pocket10.Reversed = True

# Sketch on YZ plane
sketch16 = doc.addObject("Sketcher::SketchObject", "Sketch015")
body.addObject(sketch16)
sketch16.AttachmentSupport = (doc.YZ_Plane, [""])
sketch16.MapMode = "FlatFace"
sketch16.AttachmentOffset = App.Placement(V(0, 0, -40), App.Rotation())
sketch16.addGeometry([
    Part.ArcOfCircle(Part.Circle(V(0, -40, 0), V(0, 0, 1), 4.5), math.radians(90), math.radians(180)),  # 0
    Part.ArcOfCircle(Part.Circle(V(0, -40, 0), V(0, 0, 1), 4.5), math.radians(-90), math.radians(90)),  # 1
    Part.ArcOfCircle(Part.Circle(V(0, -40, 0), V(0, 0, 1), 4.5), math.radians(180), math.radians(270)),  # 2
    Part.ArcOfCircle(Part.Circle(V(0, 40, 0), V(0, 0, 1), 4.5), math.radians(-90), math.radians(90)),  # 3
    Part.ArcOfCircle(Part.Circle(V(0, 40, 0), V(0, 0, 1), 4.5), math.radians(180), math.radians(270)),  # 4
    Part.ArcOfCircle(Part.Circle(V(0, 40, 0), V(0, 0, 1), 4.5), math.radians(90), math.radians(180)),  # 5
], False)
sketch16.addConstraint([
    Sketcher.Constraint("Tangent", 0, 1, 1, 2),
    Sketcher.Constraint("Tangent", 1, 1, 2, 2),
    Sketcher.Constraint("Tangent", 2, 1, 0, 2),
    Sketcher.Constraint("Tangent", 3, 1, 4, 2),
    Sketcher.Constraint("Tangent", 4, 1, 5, 2),
    Sketcher.Constraint("Tangent", 5, 1, 3, 2),
    Sketcher.Constraint("Equal", 2, 3),
    Sketcher.Constraint("Symmetric", 0, 3, 3, 3, -1, 1),
    Sketcher.Constraint("Symmetric", 2, 1, 4, 1, -1),
    Sketcher.Constraint("PointOnObject", 0, 1, -2),
    Sketcher.Constraint("PointOnObject", 1, 1, -2),
    Sketcher.Constraint("PointOnObject", 3, 1, -2),
    Sketcher.Constraint("PointOnObject", 5, 1, -2),
    Sketcher.Constraint("Horizontal", 1, 3, 2, 1),
    Sketcher.Constraint("Radius", 0, 4.5),
    Sketcher.Constraint("DistanceY", 0, 3, -1, 1, 40.0),
])
pocket11 = doc.addObject("PartDesign::Pocket", "Pocket010")
body.addObject(pocket11)
pocket11.Profile = sketch16
pocket11.Length = 80
pocket11.Reversed = True

doc.recompute()
